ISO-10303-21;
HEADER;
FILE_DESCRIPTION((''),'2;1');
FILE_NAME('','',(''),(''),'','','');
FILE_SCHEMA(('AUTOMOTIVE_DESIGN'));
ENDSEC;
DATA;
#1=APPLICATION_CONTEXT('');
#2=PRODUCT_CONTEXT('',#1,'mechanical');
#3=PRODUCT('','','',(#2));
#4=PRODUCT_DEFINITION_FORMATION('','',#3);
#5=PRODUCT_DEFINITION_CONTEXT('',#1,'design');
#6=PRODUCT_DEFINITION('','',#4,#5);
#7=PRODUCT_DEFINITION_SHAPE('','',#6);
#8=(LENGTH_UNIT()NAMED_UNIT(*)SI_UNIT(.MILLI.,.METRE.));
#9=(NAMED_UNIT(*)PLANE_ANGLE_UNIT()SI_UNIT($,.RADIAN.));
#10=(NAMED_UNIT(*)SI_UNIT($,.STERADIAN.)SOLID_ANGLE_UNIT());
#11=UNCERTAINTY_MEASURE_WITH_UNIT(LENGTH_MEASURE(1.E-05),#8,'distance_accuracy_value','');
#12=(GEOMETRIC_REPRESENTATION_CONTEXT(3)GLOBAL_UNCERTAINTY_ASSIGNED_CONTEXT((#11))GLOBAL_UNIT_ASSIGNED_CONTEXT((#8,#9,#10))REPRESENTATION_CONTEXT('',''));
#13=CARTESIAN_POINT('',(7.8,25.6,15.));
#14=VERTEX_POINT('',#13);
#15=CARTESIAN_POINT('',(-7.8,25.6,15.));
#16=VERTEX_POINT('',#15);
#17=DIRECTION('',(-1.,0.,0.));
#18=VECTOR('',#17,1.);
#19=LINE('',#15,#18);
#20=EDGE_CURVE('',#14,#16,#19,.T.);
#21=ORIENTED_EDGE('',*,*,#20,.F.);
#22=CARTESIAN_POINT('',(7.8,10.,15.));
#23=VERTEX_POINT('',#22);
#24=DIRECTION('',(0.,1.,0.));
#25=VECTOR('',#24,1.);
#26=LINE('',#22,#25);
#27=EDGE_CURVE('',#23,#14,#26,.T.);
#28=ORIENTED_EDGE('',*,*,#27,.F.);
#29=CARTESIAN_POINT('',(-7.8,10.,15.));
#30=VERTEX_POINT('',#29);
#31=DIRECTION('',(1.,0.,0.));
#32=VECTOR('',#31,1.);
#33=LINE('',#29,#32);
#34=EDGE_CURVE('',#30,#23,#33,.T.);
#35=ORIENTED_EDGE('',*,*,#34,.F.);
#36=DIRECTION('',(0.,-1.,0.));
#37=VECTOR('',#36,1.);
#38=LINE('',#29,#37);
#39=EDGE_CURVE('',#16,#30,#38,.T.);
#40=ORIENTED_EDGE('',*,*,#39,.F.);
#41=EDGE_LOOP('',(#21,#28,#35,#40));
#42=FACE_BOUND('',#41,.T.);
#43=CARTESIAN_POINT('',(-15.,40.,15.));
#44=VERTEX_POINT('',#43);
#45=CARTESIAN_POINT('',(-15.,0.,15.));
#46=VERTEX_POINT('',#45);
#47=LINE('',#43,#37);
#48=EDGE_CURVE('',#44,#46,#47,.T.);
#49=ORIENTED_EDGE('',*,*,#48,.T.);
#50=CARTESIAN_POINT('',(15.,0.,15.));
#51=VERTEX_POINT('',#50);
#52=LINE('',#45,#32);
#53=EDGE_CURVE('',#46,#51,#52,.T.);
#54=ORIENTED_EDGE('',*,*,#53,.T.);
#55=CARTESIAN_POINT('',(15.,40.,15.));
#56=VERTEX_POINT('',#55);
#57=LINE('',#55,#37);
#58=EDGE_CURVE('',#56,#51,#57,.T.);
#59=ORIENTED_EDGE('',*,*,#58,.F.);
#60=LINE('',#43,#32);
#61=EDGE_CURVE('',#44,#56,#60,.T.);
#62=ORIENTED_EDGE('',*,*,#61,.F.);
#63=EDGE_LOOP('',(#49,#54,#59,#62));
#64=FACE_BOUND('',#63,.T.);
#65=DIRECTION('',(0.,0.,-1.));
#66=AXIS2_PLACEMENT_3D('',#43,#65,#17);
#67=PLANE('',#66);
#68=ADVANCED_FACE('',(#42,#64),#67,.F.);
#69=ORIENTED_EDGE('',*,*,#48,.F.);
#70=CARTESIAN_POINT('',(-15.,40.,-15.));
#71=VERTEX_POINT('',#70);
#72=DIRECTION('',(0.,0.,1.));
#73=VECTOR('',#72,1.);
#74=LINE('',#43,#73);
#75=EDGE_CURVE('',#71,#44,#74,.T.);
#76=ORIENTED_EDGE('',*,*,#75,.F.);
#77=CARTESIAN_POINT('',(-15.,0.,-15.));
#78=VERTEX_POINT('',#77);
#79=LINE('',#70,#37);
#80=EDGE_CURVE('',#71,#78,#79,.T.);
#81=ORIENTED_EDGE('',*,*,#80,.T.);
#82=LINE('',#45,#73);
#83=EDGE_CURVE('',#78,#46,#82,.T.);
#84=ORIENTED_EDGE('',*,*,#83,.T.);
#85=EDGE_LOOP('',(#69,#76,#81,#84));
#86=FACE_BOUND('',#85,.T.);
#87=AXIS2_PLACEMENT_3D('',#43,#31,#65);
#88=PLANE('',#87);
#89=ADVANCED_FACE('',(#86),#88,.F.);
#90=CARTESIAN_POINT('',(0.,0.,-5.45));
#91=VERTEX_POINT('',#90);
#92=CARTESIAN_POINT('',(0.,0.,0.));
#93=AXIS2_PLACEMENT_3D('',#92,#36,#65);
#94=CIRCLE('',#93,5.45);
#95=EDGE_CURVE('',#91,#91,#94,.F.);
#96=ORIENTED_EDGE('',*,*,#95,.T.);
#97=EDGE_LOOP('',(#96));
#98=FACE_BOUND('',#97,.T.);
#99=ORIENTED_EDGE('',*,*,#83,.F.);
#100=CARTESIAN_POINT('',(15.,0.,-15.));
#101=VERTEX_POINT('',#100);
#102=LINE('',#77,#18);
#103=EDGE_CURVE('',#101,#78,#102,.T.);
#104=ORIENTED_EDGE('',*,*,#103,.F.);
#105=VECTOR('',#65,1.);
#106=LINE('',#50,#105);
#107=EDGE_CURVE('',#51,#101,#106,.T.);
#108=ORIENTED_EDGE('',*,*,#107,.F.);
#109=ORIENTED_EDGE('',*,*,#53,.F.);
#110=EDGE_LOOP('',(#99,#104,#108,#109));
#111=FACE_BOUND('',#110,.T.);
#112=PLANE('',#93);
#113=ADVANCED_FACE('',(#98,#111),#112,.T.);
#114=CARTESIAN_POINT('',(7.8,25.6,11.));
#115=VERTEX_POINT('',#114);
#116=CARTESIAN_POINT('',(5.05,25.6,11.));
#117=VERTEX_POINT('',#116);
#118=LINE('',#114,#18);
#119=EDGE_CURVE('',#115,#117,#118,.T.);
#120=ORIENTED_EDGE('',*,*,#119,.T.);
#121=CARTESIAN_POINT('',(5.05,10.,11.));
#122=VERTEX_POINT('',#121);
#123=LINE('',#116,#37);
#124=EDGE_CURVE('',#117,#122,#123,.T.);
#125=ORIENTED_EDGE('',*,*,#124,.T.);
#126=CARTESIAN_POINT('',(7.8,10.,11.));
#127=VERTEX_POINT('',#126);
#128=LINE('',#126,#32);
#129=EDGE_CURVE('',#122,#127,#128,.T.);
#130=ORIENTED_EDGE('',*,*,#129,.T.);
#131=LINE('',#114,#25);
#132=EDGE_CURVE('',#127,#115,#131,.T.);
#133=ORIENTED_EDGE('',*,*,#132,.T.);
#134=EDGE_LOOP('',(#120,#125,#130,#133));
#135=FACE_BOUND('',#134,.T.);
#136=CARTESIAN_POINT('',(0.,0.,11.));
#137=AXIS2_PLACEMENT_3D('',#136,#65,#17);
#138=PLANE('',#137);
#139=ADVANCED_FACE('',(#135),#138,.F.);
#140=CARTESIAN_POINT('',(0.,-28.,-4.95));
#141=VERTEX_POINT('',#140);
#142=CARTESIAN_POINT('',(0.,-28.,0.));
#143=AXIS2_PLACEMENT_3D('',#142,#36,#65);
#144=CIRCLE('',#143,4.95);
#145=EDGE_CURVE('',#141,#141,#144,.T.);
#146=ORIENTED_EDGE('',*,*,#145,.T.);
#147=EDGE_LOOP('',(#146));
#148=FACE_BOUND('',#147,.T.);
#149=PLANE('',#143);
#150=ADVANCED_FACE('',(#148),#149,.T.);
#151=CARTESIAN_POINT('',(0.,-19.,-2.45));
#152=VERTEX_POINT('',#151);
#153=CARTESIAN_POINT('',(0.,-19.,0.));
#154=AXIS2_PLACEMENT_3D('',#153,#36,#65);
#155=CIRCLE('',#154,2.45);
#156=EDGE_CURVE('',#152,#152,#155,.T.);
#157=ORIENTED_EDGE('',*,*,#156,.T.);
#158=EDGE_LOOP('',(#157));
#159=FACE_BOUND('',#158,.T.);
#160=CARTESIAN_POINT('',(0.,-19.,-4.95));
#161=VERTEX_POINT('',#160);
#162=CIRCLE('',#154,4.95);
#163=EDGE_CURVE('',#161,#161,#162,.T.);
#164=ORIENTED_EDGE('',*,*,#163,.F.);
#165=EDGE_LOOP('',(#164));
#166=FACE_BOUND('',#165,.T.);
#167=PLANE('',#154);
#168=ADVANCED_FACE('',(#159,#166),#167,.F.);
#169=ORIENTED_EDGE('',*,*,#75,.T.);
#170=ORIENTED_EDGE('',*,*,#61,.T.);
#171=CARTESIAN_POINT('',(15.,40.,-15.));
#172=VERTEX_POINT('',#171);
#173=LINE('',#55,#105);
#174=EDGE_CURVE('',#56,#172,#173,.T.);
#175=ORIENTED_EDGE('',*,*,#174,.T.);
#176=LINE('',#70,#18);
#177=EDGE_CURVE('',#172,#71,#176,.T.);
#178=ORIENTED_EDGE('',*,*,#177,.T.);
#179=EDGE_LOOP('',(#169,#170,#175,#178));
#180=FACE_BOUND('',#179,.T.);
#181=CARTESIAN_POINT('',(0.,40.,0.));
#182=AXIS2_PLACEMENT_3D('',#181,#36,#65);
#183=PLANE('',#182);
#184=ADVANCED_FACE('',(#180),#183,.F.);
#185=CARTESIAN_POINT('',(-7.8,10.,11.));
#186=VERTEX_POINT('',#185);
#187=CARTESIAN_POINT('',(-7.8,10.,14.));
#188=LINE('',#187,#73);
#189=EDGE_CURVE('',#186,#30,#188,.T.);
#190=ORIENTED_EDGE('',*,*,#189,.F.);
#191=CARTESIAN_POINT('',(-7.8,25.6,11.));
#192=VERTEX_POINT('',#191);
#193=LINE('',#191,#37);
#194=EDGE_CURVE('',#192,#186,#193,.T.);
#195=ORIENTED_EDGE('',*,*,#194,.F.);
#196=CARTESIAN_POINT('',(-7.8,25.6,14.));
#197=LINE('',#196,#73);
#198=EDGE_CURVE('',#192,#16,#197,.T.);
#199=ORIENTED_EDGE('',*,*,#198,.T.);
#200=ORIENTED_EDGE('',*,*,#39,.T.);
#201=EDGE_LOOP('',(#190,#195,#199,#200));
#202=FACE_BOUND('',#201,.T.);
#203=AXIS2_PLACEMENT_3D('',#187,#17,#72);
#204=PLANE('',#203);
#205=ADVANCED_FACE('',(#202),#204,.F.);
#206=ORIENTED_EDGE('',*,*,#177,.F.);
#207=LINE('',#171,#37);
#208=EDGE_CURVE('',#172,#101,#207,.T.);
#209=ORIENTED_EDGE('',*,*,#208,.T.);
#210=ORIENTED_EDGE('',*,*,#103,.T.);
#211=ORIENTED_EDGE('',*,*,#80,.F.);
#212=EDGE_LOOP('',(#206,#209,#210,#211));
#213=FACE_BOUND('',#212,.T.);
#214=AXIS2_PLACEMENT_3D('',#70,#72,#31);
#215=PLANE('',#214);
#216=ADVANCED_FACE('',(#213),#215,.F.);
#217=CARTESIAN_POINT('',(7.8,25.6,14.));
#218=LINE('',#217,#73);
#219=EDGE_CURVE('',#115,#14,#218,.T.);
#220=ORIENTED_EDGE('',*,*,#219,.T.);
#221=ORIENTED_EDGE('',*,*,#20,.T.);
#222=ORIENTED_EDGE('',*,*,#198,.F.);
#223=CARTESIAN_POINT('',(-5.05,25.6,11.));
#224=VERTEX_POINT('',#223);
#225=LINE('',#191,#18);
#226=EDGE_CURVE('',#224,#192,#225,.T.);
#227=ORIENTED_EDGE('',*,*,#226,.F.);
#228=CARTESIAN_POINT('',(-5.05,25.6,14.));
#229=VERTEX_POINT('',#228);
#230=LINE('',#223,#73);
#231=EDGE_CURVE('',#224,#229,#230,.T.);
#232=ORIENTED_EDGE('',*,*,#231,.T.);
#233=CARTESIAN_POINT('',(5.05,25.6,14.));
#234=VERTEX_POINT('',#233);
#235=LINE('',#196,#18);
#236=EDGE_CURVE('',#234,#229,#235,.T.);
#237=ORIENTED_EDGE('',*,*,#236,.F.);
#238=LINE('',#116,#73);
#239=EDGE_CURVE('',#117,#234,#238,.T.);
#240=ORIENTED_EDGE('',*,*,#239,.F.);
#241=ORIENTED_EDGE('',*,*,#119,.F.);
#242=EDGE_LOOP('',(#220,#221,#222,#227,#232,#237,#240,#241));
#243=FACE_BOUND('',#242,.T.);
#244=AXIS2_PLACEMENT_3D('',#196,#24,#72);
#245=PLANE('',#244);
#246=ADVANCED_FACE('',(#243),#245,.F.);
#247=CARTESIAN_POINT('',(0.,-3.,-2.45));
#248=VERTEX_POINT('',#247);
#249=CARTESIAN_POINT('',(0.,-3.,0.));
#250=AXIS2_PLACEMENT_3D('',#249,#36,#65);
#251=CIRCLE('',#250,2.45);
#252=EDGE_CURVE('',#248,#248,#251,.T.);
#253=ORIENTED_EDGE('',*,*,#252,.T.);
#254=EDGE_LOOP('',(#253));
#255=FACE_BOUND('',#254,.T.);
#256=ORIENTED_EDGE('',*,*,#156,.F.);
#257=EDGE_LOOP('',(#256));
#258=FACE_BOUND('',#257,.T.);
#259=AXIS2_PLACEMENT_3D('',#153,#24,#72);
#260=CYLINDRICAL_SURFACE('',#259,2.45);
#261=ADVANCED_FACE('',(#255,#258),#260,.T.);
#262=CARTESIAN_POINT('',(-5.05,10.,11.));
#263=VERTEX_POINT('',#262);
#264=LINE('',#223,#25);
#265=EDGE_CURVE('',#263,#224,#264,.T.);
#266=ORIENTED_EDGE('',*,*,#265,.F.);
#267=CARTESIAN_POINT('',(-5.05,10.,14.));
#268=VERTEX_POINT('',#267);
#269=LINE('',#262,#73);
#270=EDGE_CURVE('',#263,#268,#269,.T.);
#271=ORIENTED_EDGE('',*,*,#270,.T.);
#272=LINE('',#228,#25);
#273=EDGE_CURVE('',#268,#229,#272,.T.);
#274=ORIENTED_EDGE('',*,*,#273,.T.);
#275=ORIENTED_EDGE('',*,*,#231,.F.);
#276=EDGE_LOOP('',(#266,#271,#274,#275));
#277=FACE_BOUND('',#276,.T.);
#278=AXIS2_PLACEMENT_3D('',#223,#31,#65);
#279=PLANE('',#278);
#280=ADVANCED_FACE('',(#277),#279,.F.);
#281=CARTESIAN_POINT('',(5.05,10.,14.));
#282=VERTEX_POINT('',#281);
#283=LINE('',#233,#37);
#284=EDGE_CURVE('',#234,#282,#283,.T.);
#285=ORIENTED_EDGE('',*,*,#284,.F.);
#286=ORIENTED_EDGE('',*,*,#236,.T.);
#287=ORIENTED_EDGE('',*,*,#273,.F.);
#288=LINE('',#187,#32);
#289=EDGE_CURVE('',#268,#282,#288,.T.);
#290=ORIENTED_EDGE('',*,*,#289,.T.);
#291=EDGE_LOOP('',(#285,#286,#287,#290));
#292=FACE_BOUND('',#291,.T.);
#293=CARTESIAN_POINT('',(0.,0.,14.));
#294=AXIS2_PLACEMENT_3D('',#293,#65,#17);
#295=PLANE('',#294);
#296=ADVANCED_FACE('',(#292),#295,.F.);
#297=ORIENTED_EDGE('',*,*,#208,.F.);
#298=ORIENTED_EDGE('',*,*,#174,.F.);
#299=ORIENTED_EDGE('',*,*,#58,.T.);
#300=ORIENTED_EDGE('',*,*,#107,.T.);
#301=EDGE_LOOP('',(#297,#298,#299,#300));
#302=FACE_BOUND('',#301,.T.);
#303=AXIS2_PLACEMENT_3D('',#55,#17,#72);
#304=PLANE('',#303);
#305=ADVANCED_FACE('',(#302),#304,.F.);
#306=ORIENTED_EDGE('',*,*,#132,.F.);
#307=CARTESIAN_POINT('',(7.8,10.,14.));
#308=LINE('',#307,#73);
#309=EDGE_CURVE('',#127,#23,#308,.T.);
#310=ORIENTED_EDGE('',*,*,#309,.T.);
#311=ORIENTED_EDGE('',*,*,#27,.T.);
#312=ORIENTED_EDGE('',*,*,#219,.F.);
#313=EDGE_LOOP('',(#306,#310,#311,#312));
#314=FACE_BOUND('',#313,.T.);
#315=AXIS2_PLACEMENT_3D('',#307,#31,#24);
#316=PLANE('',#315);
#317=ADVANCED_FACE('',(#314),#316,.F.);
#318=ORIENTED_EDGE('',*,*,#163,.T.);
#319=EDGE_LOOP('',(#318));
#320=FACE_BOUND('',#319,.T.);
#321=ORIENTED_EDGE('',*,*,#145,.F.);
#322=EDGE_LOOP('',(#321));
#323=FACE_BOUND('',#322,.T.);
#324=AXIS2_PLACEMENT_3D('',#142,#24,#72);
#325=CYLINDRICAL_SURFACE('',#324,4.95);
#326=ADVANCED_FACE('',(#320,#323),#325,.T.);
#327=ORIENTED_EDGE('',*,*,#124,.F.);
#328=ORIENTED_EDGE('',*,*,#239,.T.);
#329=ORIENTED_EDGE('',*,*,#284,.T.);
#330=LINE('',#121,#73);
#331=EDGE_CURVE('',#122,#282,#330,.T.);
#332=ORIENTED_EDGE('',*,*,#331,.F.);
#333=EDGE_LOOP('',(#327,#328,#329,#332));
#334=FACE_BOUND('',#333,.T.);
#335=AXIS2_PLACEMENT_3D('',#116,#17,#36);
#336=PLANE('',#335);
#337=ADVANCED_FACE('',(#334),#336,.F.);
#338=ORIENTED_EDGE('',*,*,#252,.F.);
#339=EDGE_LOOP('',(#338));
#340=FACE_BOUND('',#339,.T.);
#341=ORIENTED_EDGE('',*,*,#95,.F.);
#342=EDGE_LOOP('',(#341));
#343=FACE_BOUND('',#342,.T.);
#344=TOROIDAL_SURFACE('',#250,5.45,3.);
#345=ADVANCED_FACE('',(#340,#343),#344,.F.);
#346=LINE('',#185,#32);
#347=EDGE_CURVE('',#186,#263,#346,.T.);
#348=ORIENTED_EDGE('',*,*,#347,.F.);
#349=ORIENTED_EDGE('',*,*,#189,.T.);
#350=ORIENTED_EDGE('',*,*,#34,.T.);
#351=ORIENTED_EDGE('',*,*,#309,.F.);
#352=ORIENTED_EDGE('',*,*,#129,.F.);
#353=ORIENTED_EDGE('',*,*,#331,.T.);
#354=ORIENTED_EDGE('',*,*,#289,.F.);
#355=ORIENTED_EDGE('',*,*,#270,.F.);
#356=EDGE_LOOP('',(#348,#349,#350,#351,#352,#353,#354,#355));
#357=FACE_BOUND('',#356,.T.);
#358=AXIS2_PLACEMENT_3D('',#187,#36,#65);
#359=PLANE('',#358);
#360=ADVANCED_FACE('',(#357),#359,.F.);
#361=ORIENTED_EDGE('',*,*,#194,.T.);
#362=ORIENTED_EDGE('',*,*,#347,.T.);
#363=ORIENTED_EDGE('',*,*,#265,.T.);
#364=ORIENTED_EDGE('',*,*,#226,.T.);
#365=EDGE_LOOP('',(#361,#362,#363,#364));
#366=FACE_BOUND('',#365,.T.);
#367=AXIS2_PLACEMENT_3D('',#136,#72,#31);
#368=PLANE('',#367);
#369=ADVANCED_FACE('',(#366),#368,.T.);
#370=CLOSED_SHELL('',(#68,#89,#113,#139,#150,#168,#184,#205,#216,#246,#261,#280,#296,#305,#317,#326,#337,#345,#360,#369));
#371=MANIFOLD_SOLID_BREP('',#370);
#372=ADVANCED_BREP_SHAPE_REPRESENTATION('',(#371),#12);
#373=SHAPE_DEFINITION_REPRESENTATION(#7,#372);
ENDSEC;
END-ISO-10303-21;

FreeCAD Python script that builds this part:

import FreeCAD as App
import Part
import Sketcher
Q = App.Units.Quantity


def edges_at(feature, points):
    """Names of the edges that pass closest to the given points."""
    edges = feature.Shape.Edges
    near = lambda p: min(range(len(edges)), key=lambda i: edges[i].distToShape(Part.Vertex(*p))[0])
    return sorted({f"Edge{near(p) + 1}" for p in points})

doc = App.newDocument("Part")
body = doc.addObject("PartDesign::Body", "Body")

# Sketch on XZ plane
sketch1 = body.newObject("Sketcher::SketchObject", "Sketch")
sketch1.AttachmentSupport = (doc.getObject("XZ_Plane"), [""])
sketch1.MapMode = "FlatFace"
sketch1.addGeometry([
    Part.LineSegment(App.Vector(-15, -15, 0), App.Vector(-15, 15, 0)),
    Part.LineSegment(App.Vector(-15, 15, 0), App.Vector(15, 15, 0)),
    Part.LineSegment(App.Vector(15, 15, 0), App.Vector(15, -15, 0)),
    Part.LineSegment(App.Vector(15, -15, 0), App.Vector(-15, -15, 0)),
], False)
sketch1.addConstraint([
    Sketcher.Constraint("Coincident", 0, 2, 1, 1),
    Sketcher.Constraint("Coincident", 1, 2, 2, 1),
    Sketcher.Constraint("Coincident", 2, 2, 3, 1),
    Sketcher.Constraint("Coincident", 3, 2, 0, 1),
    Sketcher.Constraint("Vertical", 0),
    Sketcher.Constraint("Horizontal", 1),
    Sketcher.Constraint("Vertical", 2),
    Sketcher.Constraint("Horizontal", 3),
    Sketcher.Constraint("Symmetric", 0, 2, 2, 2, -1, 1),
    Sketcher.Constraint("Equal", 3, 0),
    Sketcher.Constraint("DistanceX", 1, 1, 1, 2, Q("30 mm")),
])
pad1 = body.newObject("PartDesign::Pad", "Pad")
pad1.Profile = sketch1
pad1.Length = 40
pad1.Reversed = True

# Sketch on XZ plane
sketch2 = body.newObject("Sketcher::SketchObject", "Sketch001")
sketch2.AttachmentSupport = (doc.getObject("XZ_Plane"), [""])
sketch2.MapMode = "FlatFace"
sketch2.addGeometry(Part.Circle(App.Vector(0, 0, 0), App.Vector(0, 0, 1), 2.5), False)
sketch2.addConstraint([
    Sketcher.Constraint("Coincident", 0, 3, -1, 1),
    Sketcher.Constraint("Diameter", 0, Q("4.9 mm")),
])
pad2 = body.newObject("PartDesign::Pad", "Pad001")
pad2.Profile = sketch2
pad2.Length = 19

# Sketch on XZ plane
sketch3 = body.newObject("Sketcher::SketchObject", "Sketch002")
sketch3.AttachmentSupport = (doc.getObject("XZ_Plane"), [""])
sketch3.MapMode = "FlatFace"
sketch3.AttachmentOffset = App.Placement(App.Vector(0, 0, 19), App.Rotation())
sketch3.addGeometry(Part.Circle(App.Vector(0, 0, 0), App.Vector(0, 0, 1), 5), False)
sketch3.addConstraint([
    Sketcher.Constraint("Coincident", 0, 3, -1, 1),
    Sketcher.Constraint("Diameter", 0, Q("9.9 mm")),
])
pad3 = body.newObject("PartDesign::Pad", "Pad002")
pad3.Profile = sketch3
pad3.Length = 9

# Sketch on XY plane
sketch4 = body.newObject("Sketcher::SketchObject", "Sketch003")
sketch4.AttachmentSupport = (doc.getObject("XY_Plane"), [""])
sketch4.MapMode = "FlatFace"
sketch4.AttachmentOffset = App.Placement(App.Vector(0, 0, 15), App.Rotation())
sketch4.addGeometry([
    Part.LineSegment(App.Vector(-8, 26, 0), App.Vector(-8, 10, 0)),
    Part.LineSegment(App.Vector(-8, 10, 0), App.Vector(8, 10, 0)),
    Part.LineSegment(App.Vector(8, 10, 0), App.Vector(8, 26, 0)),
    Part.LineSegment(App.Vector(8, 26, 0), App.Vector(-8, 26, 0)),
], False)
sketch4.addConstraint([
    Sketcher.Constraint("Coincident", 0, 2, 1, 1),
    Sketcher.Constraint("Coincident", 1, 2, 2, 1),
    Sketcher.Constraint("Coincident", 2, 2, 3, 1),
    Sketcher.Constraint("Coincident", 3, 2, 0, 1),
    Sketcher.Constraint("Vertical", 0),
    Sketcher.Constraint("Horizontal", 1),
    Sketcher.Constraint("Vertical", 2),
    Sketcher.Constraint("Horizontal", 3),
    Sketcher.Constraint("Equal", 3, 0),
    Sketcher.Constraint("DistanceX", 1, 1, 1, 2, Q("15.6 mm")),
    Sketcher.Constraint("DistanceY", -1, 1, 0, 2, Q("10 mm")),
    Sketcher.Constraint("DistanceX", 0, 2, -1, 1, Q("7.8 mm")),
])
pocket1 = body.newObject("PartDesign::Pocket", "Pocket")
pocket1.Profile = sketch4
pocket1.Length = 1

# Sketch on XY plane
sketch5 = body.newObject("Sketcher::SketchObject", "Sketch004")
sketch5.AttachmentSupport = (doc.getObject("XY_Plane"), [""])
sketch5.MapMode = "FlatFace"
sketch5.AttachmentOffset = App.Placement(App.Vector(0, 0, 14), App.Rotation())
sketch5.addGeometry([
    Part.LineSegment(App.Vector(-7.8, 25.6, 0), App.Vector(-7.8, 10, 0)),  # 0
    Part.LineSegment(App.Vector(-7.8, 10, 0), App.Vector(-5, 10, 0)),  # 1
    Part.LineSegment(App.Vector(-5, 10, 0), App.Vector(-5, 25.6, 0)),  # 2
    Part.LineSegment(App.Vector(-5, 25.6, 0), App.Vector(-7.8, 25.6, 0)),  # 3
    Part.LineSegment(App.Vector(5, 25.6, 0), App.Vector(5, 10, 0)),  # 4
    Part.LineSegment(App.Vector(5, 10, 0), App.Vector(7.8, 10, 0)),  # 5
    Part.LineSegment(App.Vector(7.8, 10, 0), App.Vector(7.8, 25.6, 0)),  # 6
    Part.LineSegment(App.Vector(7.8, 25.6, 0), App.Vector(5, 25.6, 0)),  # 7
], False)
sketch5.addConstraint([
    Sketcher.Constraint("Coincident", 0, 2, 1, 1),
    Sketcher.Constraint("Coincident", 1, 2, 2, 1),
    Sketcher.Constraint("Coincident", 2, 2, 3, 1),
    Sketcher.Constraint("Coincident", 3, 2, 0, 1),
    Sketcher.Constraint("Coincident", 4, 2, 5, 1),
    Sketcher.Constraint("Coincident", 5, 2, 6, 1),
    Sketcher.Constraint("Coincident", 6, 2, 7, 1),
    Sketcher.Constraint("Coincident", 7, 2, 4, 1),
    Sketcher.Constraint("Vertical", 0),
    Sketcher.Constraint("Horizontal", 1),
    Sketcher.Constraint("Vertical", 2),
    Sketcher.Constraint("Horizontal", 3),
    Sketcher.Constraint("Vertical", 4),
    Sketcher.Constraint("Horizontal", 5),
    Sketcher.Constraint("Vertical", 6),
    Sketcher.Constraint("Horizontal", 7),
    Sketcher.Constraint("Symmetric", 1, 2, 4, 2, -2),
    Sketcher.Constraint("Symmetric", 3, 2, 6, 2, -2),
    Sketcher.Constraint("DistanceY", 0, 2, 0, 1, Q("15.6 mm")),
    Sketcher.Constraint("DistanceY", -1, 1, 0, 2, Q("10 mm")),
    Sketcher.Constraint("DistanceX", 1, 1, 1, 2, Q("2.75 mm")),
    Sketcher.Constraint("DistanceX", 0, 2, -1, 1, Q("7.8 mm")),
])
pocket2 = body.newObject("PartDesign::Pocket", "Pocket001")
pocket2.Profile = sketch5
pocket2.Length = 3
doc.recompute()

fillet = body.newObject("PartDesign::Fillet", "Fillet")
fillet.Base = (pocket2, edges_at(pocket2, [(0, 0, 2.45)]))
fillet.Radius = 3

doc.recompute()
